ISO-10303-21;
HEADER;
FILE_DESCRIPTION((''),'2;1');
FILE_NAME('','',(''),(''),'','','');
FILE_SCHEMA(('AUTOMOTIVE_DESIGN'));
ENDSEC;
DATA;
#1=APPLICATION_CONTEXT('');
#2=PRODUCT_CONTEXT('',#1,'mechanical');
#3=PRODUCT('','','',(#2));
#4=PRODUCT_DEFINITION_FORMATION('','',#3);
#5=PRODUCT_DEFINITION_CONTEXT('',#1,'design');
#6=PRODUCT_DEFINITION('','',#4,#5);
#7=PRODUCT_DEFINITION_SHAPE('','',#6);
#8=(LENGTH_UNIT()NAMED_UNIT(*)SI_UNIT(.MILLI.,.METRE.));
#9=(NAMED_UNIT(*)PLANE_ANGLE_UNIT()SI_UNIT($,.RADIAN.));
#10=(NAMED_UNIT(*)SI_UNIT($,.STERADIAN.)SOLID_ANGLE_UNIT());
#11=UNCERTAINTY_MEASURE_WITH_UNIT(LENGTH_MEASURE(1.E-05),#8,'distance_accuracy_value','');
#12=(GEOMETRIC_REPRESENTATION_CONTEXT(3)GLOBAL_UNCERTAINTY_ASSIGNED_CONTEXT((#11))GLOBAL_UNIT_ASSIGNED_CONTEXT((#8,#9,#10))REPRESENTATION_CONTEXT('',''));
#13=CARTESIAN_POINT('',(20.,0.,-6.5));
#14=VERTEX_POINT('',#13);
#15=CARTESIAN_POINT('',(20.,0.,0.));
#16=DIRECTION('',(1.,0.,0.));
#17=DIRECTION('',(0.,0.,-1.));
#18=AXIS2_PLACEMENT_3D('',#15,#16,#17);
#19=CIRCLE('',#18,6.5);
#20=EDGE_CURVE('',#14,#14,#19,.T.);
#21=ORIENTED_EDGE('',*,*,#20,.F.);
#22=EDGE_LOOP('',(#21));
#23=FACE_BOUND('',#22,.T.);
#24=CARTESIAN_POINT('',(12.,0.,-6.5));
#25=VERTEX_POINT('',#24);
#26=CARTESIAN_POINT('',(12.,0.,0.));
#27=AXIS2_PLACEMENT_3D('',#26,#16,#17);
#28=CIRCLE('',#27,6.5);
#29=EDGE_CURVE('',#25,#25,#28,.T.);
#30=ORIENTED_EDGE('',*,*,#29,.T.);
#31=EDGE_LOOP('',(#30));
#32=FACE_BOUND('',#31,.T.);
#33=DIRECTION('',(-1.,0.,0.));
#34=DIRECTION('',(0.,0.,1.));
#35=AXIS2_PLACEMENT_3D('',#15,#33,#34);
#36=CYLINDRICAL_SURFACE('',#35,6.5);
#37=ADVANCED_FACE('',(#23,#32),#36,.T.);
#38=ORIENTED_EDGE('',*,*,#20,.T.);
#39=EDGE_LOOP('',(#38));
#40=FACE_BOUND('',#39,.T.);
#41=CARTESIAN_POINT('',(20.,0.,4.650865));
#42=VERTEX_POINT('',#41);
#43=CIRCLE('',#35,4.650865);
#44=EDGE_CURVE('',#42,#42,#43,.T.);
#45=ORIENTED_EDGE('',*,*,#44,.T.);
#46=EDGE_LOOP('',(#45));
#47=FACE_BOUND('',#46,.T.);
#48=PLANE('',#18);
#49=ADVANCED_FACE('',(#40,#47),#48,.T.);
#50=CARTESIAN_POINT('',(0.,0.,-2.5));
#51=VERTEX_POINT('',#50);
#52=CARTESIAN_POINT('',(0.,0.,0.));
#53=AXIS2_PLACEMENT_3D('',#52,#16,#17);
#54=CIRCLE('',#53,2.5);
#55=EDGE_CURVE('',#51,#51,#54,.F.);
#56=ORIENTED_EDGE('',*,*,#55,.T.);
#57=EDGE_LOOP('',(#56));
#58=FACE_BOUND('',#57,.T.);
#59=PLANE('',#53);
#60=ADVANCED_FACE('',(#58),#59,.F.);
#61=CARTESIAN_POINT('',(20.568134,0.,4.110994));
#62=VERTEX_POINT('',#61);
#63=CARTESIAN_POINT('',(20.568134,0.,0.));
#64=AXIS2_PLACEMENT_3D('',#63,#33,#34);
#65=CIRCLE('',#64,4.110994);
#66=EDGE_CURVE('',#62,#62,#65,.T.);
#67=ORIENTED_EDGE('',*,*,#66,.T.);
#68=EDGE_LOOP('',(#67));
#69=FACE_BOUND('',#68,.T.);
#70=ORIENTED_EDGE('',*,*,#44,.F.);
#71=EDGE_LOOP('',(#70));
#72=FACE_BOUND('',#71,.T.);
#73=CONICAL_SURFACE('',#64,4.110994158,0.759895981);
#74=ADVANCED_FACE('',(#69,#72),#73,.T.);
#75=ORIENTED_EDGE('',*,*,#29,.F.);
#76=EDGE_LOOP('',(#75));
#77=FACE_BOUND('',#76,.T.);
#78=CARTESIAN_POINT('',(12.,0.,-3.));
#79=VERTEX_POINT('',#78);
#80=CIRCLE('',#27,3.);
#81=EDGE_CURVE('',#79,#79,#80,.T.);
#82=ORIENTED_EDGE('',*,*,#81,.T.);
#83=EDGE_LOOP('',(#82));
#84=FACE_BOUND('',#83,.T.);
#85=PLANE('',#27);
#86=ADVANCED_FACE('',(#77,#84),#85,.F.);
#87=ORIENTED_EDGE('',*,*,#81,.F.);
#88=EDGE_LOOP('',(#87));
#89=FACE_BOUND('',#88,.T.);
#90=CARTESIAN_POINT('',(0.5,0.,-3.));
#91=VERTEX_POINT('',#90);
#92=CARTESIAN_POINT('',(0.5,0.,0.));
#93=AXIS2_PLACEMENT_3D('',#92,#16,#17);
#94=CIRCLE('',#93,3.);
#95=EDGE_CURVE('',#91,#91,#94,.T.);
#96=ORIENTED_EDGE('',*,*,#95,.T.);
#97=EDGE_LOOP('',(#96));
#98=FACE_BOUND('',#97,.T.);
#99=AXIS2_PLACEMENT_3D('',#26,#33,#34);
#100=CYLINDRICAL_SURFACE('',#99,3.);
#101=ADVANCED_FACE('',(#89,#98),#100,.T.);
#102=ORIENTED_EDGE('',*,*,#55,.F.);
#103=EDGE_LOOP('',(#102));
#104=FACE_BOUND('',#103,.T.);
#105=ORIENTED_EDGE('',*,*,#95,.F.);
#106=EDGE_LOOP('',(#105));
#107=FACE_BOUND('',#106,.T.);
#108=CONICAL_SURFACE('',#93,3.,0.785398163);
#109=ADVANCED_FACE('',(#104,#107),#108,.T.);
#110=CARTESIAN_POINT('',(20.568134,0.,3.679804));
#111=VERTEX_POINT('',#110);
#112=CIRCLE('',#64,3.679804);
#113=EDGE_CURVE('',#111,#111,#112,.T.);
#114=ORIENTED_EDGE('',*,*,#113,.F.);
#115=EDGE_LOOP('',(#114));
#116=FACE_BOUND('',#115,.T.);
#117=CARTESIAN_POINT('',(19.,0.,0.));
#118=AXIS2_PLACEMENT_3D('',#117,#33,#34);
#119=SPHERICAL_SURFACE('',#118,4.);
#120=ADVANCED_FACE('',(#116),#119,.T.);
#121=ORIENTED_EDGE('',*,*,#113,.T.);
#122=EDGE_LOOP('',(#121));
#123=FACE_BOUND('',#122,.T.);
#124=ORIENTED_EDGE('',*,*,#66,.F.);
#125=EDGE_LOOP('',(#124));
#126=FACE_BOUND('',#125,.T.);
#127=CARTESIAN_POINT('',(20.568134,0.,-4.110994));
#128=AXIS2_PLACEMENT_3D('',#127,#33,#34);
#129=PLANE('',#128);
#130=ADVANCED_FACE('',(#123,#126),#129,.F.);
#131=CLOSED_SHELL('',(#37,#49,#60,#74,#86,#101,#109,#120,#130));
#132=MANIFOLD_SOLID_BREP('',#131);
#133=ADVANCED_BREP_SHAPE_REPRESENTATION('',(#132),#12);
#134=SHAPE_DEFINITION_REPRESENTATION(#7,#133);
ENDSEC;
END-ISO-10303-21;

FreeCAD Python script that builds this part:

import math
import FreeCAD as App
import Part
import Sketcher
from FreeCAD import Vector
Q = App.Units.Quantity


def edges_at(feature, points):
    """Names of the edges that pass closest to the given points."""
    edges = feature.Shape.Edges
    near = lambda p: min(range(len(edges)), key=lambda i: edges[i].distToShape(Part.Vertex(*p))[0])
    return sorted({f"Edge{near(p) + 1}" for p in points})

doc = App.newDocument("Part")
body = doc.addObject("PartDesign::Body", "Body")

sketch1 = body.newObject("Sketcher::SketchObject", "Sketch")
sketch1.AttachmentSupport = (doc.getObject("YZ_Plane"), [""])
sketch1.MapMode = "FlatFace"
sketch1.addGeometry(Part.Circle(Vector(0, 0, 0), Vector(0, 0, 1), 3), False)
sketch1.addConstraint(Sketcher.Constraint("Coincident", 0, 3, -1, 1))
sketch1.addConstraint(Sketcher.Constraint("Diameter", 0, Q("6 mm")))
pad1 = body.newObject("PartDesign::Pad", "Pad")
pad1.Profile = sketch1
pad1.Length = 12

sketch2 = body.newObject("Sketcher::SketchObject", "Sketch001")
sketch2.AttachmentSupport = (doc.getObject("YZ_Plane"), [""])
sketch2.MapMode = "FlatFace"
sketch2.AttachmentOffset = App.Placement(Vector(0, 0, 12), App.Rotation())
sketch2.addGeometry(Part.Circle(Vector(0, 0, 0), Vector(0, 0, 1), 6.5), False)
sketch2.addConstraint(Sketcher.Constraint("Coincident", 0, 3, -1, 1))
sketch2.addConstraint(Sketcher.Constraint("Diameter", 0, Q("13 mm")))
pad2 = body.newObject("PartDesign::Pad", "Pad001")
pad2.Profile = sketch2
pad2.Length = 8

sketch3 = body.newObject("Sketcher::SketchObject", "Sketch002")
sketch3.AttachmentSupport = (doc.getObject("XZ_Plane"), [""])
sketch3.MapMode = "FlatFace"
sketch3.addGeometry(Part.LineSegment(Vector(15, 0, 0), Vector(23, 0, 0)), False)
sketch3.addGeometry(Part.ArcOfCircle(Part.Circle(Vector(19, 0, 0), Vector(0, 0, 1), 4), math.radians(-66.918913), math.radians(0)), False)
sketch3.addGeometry(Part.LineSegment(Vector(20.568134, -3.679804, 0), Vector(20.568134, -4.110994, 0)), False)
sketch3.addGeometry(Part.LineSegment(Vector(20.568134, -4.110994, 0), Vector(20, -4.650865, 0)), False)
sketch3.addGeometry(Part.LineSegment(Vector(20, -4.650865, 0), Vector(20, -3.872983, 0)), False)
sketch3.addGeometry(Part.ArcOfCircle(Part.Circle(Vector(19, 0, 0), Vector(0, 0, 1), 4), math.radians(180), math.radians(284.477512)), False)
sketch3.addConstraint(Sketcher.Constraint("Coincident", 0, 2, 1, 2))
sketch3.addConstraint(Sketcher.Constraint("Coincident", 1, 1, 2, 1))
sketch3.addConstraint(Sketcher.Constraint("Coincident", 2, 2, 3, 1))
sketch3.addConstraint(Sketcher.Constraint("Coincident", 3, 2, 4, 1))
sketch3.addConstraint(Sketcher.Constraint("Coincident", 4, 2, 5, 2))
sketch3.addConstraint(Sketcher.Constraint("Coincident", 5, 1, 0, 1))
sketch3.addConstraint(Sketcher.Constraint("Horizontal", 0))
sketch3.addConstraint(Sketcher.Constraint("Vertical", 2))
sketch3.addConstraint(Sketcher.Constraint("Vertical", 4))
sketch3.addConstraint(Sketcher.Constraint("Coincident", 5, 3, 1, 3))
sketch3.addConstraint(Sketcher.Constraint("Equal", 1, 5))
sketch3.addConstraint(Sketcher.Constraint("PointOnObject", 1, 3, -1))
sketch3.addConstraint(Sketcher.Constraint("PointOnObject", 0, 2, -1))
sketch3.addConstraint(Sketcher.Constraint("Radius", 1, Q("4 mm")))
sketch3.addConstraint(Sketcher.Constraint("DistanceX", -1, 1, 1, 3, Q("19 mm")))
sketch3.addConstraint(Sketcher.Constraint("DistanceX", -1, 1, 3, 2, Q("20 mm")))
sketch3.addConstraint(Sketcher.Constraint("DistanceY", 2, 2, 2, 1, Q("0.43119 mm")))
sketch3.addConstraint(Sketcher.Constraint("DistanceY", 4, 1, 4, 2, Q("0.777882 mm")))
sketch3.addConstraint(Sketcher.Constraint("DistanceY", 3, 2, 2, 2, Q("0.539871 mm")))
revolution = body.newObject("PartDesign::Revolution", "Revolution")
revolution.Profile = sketch3
revolution.ReferenceAxis = (sketch3, ["H_Axis"])
revolution.Angle = 360
doc.recompute()

chamfer = body.newObject("PartDesign::Chamfer", "Chamfer")
chamfer.Base = (revolution, edges_at(revolution, [(0, 0, 3)]))
chamfer.Size = 0.5

doc.recompute()
